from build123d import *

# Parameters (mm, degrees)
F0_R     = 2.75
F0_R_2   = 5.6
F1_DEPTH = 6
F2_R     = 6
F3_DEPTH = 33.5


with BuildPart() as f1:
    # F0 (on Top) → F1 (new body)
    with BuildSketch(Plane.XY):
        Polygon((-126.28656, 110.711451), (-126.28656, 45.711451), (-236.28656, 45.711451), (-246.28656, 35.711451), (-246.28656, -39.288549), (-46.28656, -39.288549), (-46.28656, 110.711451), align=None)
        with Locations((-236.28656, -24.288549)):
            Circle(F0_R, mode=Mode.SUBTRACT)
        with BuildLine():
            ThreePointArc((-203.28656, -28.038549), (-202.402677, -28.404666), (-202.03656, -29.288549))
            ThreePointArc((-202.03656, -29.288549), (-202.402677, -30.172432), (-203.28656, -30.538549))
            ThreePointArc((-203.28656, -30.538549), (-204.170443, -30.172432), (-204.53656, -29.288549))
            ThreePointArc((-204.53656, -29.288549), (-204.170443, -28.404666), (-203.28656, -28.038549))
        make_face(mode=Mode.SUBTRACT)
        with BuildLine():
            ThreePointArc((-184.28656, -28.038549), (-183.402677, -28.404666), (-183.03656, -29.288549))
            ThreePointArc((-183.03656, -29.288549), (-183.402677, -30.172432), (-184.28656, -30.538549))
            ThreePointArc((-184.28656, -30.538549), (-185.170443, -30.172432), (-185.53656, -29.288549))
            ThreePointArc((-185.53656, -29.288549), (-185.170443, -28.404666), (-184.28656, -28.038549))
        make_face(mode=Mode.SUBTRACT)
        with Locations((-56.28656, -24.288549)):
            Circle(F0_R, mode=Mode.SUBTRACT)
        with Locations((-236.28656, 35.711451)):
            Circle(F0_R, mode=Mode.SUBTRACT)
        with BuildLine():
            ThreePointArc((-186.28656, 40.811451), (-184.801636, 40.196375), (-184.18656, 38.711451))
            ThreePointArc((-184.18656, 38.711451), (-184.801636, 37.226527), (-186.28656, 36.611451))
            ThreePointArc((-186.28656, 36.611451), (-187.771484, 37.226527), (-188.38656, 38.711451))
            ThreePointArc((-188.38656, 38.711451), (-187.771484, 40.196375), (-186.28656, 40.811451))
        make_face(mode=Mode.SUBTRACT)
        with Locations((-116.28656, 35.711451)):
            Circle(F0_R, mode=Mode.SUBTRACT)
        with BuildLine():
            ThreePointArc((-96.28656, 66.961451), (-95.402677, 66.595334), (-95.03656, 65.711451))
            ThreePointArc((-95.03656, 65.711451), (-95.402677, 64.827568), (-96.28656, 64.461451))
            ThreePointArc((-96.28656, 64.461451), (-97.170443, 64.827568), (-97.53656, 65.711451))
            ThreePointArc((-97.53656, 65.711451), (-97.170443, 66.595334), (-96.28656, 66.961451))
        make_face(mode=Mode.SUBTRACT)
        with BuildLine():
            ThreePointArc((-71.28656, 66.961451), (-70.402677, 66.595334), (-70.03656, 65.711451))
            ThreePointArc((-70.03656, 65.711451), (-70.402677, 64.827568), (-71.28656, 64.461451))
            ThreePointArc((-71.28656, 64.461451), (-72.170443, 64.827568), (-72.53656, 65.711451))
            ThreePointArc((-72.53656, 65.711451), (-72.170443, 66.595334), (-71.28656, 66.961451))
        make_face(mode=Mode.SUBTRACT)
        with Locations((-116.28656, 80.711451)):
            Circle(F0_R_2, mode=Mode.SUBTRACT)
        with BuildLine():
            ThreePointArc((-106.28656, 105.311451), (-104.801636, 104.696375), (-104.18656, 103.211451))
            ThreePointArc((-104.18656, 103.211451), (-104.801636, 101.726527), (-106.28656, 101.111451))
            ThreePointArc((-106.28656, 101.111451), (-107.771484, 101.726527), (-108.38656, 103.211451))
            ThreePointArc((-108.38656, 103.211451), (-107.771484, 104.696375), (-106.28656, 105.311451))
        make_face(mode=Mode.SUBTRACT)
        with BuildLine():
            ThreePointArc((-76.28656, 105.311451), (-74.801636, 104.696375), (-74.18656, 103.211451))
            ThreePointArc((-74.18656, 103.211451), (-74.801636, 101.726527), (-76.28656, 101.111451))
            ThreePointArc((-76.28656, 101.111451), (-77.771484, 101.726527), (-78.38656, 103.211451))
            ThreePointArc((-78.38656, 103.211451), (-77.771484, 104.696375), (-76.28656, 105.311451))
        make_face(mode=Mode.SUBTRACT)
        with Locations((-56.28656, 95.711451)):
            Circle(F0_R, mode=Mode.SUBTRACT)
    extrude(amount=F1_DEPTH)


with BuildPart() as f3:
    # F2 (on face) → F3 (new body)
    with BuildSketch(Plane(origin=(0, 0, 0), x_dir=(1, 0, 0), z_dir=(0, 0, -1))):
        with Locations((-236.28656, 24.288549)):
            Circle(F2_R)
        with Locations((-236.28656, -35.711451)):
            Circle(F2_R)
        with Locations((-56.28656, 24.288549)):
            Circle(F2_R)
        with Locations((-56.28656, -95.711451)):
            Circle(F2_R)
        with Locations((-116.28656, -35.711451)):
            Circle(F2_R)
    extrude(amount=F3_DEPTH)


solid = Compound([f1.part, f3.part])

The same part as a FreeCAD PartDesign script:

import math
import FreeCAD as App
import Part
import Sketcher

V = App.Vector
Q = App.Units.Quantity


def add_polygon(sketch, points):
    """Adds a closed chain of lines whose ends are joined by coincident constraints."""
    first, n = sketch.GeometryCount, len(points)
    for a, b in zip(points, points[1:] + points[:1]):
        sketch.addGeometry(Part.LineSegment(App.Vector(*a, 0), App.Vector(*b, 0)), False)
    for i in range(n):
        sketch.addConstraint(Sketcher.Constraint("Coincident", first + i, 2, first + (i + 1) % n, 1))

doc = App.newDocument("Part")
body = doc.addObject("PartDesign::Body", "Body")

# Sketch on XY plane
sketch1 = body.newObject("Sketcher::SketchObject", "Sketch")
sketch1.AttachmentSupport = (doc.getObject("XY_Plane"), [""])
sketch1.MapMode = "FlatFace"
add_polygon(sketch1, [(-126.28656, 110.711451), (-126.28656, 45.711451), (-236.28656, 45.711451), (-246.28656, 35.711451), (-246.28656, -39.288549), (-46.28656, -39.288549), (-46.28656, 110.711451)])  # lines 0-6
sketch1.addGeometry(Part.Circle(V(-236.28656, -24.288549, 0), V(0, 0, 1), 2.75), False)  # 7
sketch1.addGeometry(Part.ArcOfCircle(Part.Circle(V(-203.286558, -29.288551, 0), V(0, 0, 1), 1.250002), math.radians(90.000075), math.radians(179.999925)), False)  # 8
sketch1.addGeometry(Part.ArcOfCircle(Part.Circle(V(-203.286562, -29.288551, 0), V(0, 0, 1), 1.250002), math.radians(0.000075), math.radians(89.999925)), False)  # 9
sketch1.addGeometry(Part.ArcOfCircle(Part.Circle(V(-203.286562, -29.288547, 0), V(0, 0, 1), 1.250002), math.radians(-89.999925), math.radians(-0.000075)), False)  # 10
sketch1.addGeometry(Part.ArcOfCircle(Part.Circle(V(-203.286558, -29.288547, 0), V(0, 0, 1), 1.250002), math.radians(-179.999925), math.radians(-90.000075)), False)  # 11
sketch1.addGeometry(Part.ArcOfCircle(Part.Circle(V(-184.286558, -29.288551, 0), V(0, 0, 1), 1.250002), math.radians(90.000075), math.radians(179.999925)), False)  # 12
sketch1.addGeometry(Part.ArcOfCircle(Part.Circle(V(-184.286562, -29.288551, 0), V(0, 0, 1), 1.250002), math.radians(0.000075), math.radians(89.999925)), False)  # 13
sketch1.addGeometry(Part.ArcOfCircle(Part.Circle(V(-184.286562, -29.288547, 0), V(0, 0, 1), 1.250002), math.radians(-89.999925), math.radians(-0.000075)), False)  # 14
sketch1.addGeometry(Part.ArcOfCircle(Part.Circle(V(-184.286558, -29.288547, 0), V(0, 0, 1), 1.250002), math.radians(-179.999925), math.radians(-90.000075)), False)  # 15
sketch1.addGeometry(Part.Circle(V(-236.28656, 35.711451, 0), V(0, 0, 1), 2.75), False)  # 16
sketch1.addGeometry(Part.Circle(V(-56.28656, -24.288549, 0), V(0, 0, 1), 2.75), False)  # 17
sketch1.addGeometry(Part.Circle(V(-116.28656, 35.711451, 0), V(0, 0, 1), 2.75), False)  # 18
sketch1.addGeometry(Part.ArcOfCircle(Part.Circle(V(-186.286559, 38.71145, 0), V(0, 0, 1), 2.100001), math.radians(90.000022), math.radians(179.999978)), False)  # 19
sketch1.addGeometry(Part.ArcOfCircle(Part.Circle(V(-186.286561, 38.71145, 0), V(0, 0, 1), 2.100001), math.radians(0.000022), math.radians(89.999978)), False)  # 20
sketch1.addGeometry(Part.ArcOfCircle(Part.Circle(V(-186.286561, 38.711452, 0), V(0, 0, 1), 2.100001), math.radians(-89.999978), math.radians(-0.000022)), False)  # 21
sketch1.addGeometry(Part.ArcOfCircle(Part.Circle(V(-186.286559, 38.711452, 0), V(0, 0, 1), 2.100001), math.radians(-179.999978), math.radians(-90.000022)), False)  # 22
sketch1.addGeometry(Part.ArcOfCircle(Part.Circle(V(-96.286558, 65.711449, 0), V(0, 0, 1), 1.250002), math.radians(90.000075), math.radians(179.999925)), False)  # 23
sketch1.addGeometry(Part.ArcOfCircle(Part.Circle(V(-96.286562, 65.711449, 0), V(0, 0, 1), 1.250002), math.radians(0.000075), math.radians(89.999925)), False)  # 24
sketch1.addGeometry(Part.ArcOfCircle(Part.Circle(V(-96.286562, 65.711453, 0), V(0, 0, 1), 1.250002), math.radians(-89.999925), math.radians(-0.000075)), False)  # 25
sketch1.addGeometry(Part.ArcOfCircle(Part.Circle(V(-96.286558, 65.711453, 0), V(0, 0, 1), 1.250002), math.radians(-179.999925), math.radians(-90.000075)), False)  # 26
sketch1.addGeometry(Part.ArcOfCircle(Part.Circle(V(-71.286558, 65.711449, 0), V(0, 0, 1), 1.250002), math.radians(90.000075), math.radians(179.999925)), False)  # 27
sketch1.addGeometry(Part.ArcOfCircle(Part.Circle(V(-71.286562, 65.711449, 0), V(0, 0, 1), 1.250002), math.radians(0.000075), math.radians(89.999925)), False)  # 28
sketch1.addGeometry(Part.ArcOfCircle(Part.Circle(V(-71.286562, 65.711453, 0), V(0, 0, 1), 1.250002), math.radians(-89.999925), math.radians(-0.000075)), False)  # 29
sketch1.addGeometry(Part.ArcOfCircle(Part.Circle(V(-71.286558, 65.711453, 0), V(0, 0, 1), 1.250002), math.radians(-179.999925), math.radians(-90.000075)), False)  # 30
sketch1.addGeometry(Part.Circle(V(-116.28656, 80.711451, 0), V(0, 0, 1), 5.6), False)  # 31
sketch1.addGeometry(Part.ArcOfCircle(Part.Circle(V(-106.286559, 103.21145, 0), V(0, 0, 1), 2.100001), math.radians(90.000022), math.radians(179.999978)), False)  # 32
sketch1.addGeometry(Part.ArcOfCircle(Part.Circle(V(-106.286561, 103.21145, 0), V(0, 0, 1), 2.100001), math.radians(0.000022), math.radians(89.999978)), False)  # 33
sketch1.addGeometry(Part.ArcOfCircle(Part.Circle(V(-106.286561, 103.211452, 0), V(0, 0, 1), 2.100001), math.radians(-89.999978), math.radians(-0.000022)), False)  # 34
sketch1.addGeometry(Part.ArcOfCircle(Part.Circle(V(-106.286559, 103.211452, 0), V(0, 0, 1), 2.100001), math.radians(-179.999978), math.radians(-90.000022)), False)  # 35
sketch1.addGeometry(Part.Circle(V(-56.28656, 95.711451, 0), V(0, 0, 1), 2.75), False)  # 36
sketch1.addGeometry(Part.ArcOfCircle(Part.Circle(V(-76.286559, 103.21145, 0), V(0, 0, 1), 2.100001), math.radians(90.000022), math.radians(179.999978)), False)  # 37
sketch1.addGeometry(Part.ArcOfCircle(Part.Circle(V(-76.286561, 103.21145, 0), V(0, 0, 1), 2.100001), math.radians(0.000022), math.radians(89.999978)), False)  # 38
sketch1.addGeometry(Part.ArcOfCircle(Part.Circle(V(-76.286561, 103.211452, 0), V(0, 0, 1), 2.100001), math.radians(-89.999978), math.radians(-0.000022)), False)  # 39
sketch1.addGeometry(Part.ArcOfCircle(Part.Circle(V(-76.286559, 103.211452, 0), V(0, 0, 1), 2.100001), math.radians(-179.999978), math.radians(-90.000022)), False)  # 40
sketch1.addConstraint([
    Sketcher.Constraint("Coincident", 8, 1, 9, 2),
    Sketcher.Constraint("Coincident", 9, 1, 10, 2),
    Sketcher.Constraint("Coincident", 10, 1, 11, 2),
    Sketcher.Constraint("Coincident", 11, 1, 8, 2),
    Sketcher.Constraint("Coincident", 12, 1, 13, 2),
    Sketcher.Constraint("Coincident", 13, 1, 14, 2),
    Sketcher.Constraint("Coincident", 14, 1, 15, 2),
    Sketcher.Constraint("Coincident", 15, 1, 12, 2),
    Sketcher.Constraint("Tangent", 19, 1, 20, 2),
    Sketcher.Constraint("Tangent", 20, 1, 21, 2),
    Sketcher.Constraint("Tangent", 21, 1, 22, 2),
    Sketcher.Constraint("Tangent", 22, 1, 19, 2),
    Sketcher.Constraint("Coincident", 23, 1, 24, 2),
    Sketcher.Constraint("Coincident", 24, 1, 25, 2),
    Sketcher.Constraint("Coincident", 25, 1, 26, 2),
    Sketcher.Constraint("Coincident", 26, 1, 23, 2),
    Sketcher.Constraint("Coincident", 27, 1, 28, 2),
    Sketcher.Constraint("Coincident", 28, 1, 29, 2),
    Sketcher.Constraint("Coincident", 29, 1, 30, 2),
    Sketcher.Constraint("Coincident", 30, 1, 27, 2),
    Sketcher.Constraint("Tangent", 32, 1, 33, 2),
    Sketcher.Constraint("Tangent", 33, 1, 34, 2),
    Sketcher.Constraint("Tangent", 34, 1, 35, 2),
    Sketcher.Constraint("Tangent", 35, 1, 32, 2),
    Sketcher.Constraint("Tangent", 37, 1, 38, 2),
    Sketcher.Constraint("Tangent", 38, 1, 39, 2),
    Sketcher.Constraint("Tangent", 39, 1, 40, 2),
    Sketcher.Constraint("Tangent", 40, 1, 37, 2),
    Sketcher.Constraint("Vertical", 0),
    Sketcher.Constraint("Horizontal", 1),
    Sketcher.Constraint("Vertical", 3),
    Sketcher.Constraint("Horizontal", 4),
    Sketcher.Constraint("Vertical", 5),
    Sketcher.Constraint("Horizontal", 6),
    Sketcher.Constraint("Coincident", 9, 3, 8, 3),
    Sketcher.Constraint("Coincident", 10, 3, 8, 3),
    Sketcher.Constraint("Coincident", 13, 3, 12, 3),
    Sketcher.Constraint("Coincident", 14, 3, 12, 3),
    Sketcher.Constraint("Coincident", 24, 3, 23, 3),
    Sketcher.Constraint("Coincident", 25, 3, 23, 3),
    Sketcher.Constraint("Coincident", 28, 3, 27, 3),
    Sketcher.Constraint("Coincident", 29, 3, 27, 3),
    Sketcher.Constraint("Equal", 10, 11),
    Sketcher.Constraint("Equal", 11, 12),
    Sketcher.Constraint("Equal", 14, 15),
    Sketcher.Constraint("Equal", 7, 16),
    Sketcher.Constraint("Equal", 16, 17),
    Sketcher.Constraint("Equal", 17, 18),
    Sketcher.Constraint("Equal", 19, 20),
    Sketcher.Constraint("Equal", 15, 23),
    Sketcher.Constraint("Equal", 25, 26),
    Sketcher.Constraint("Equal", 26, 27),
    Sketcher.Constraint("Equal", 29, 30),
    Sketcher.Constraint("Equal", 22, 32),
    Sketcher.Constraint("Equal", 32, 33),
    Sketcher.Constraint("Equal", 18, 36),
    Sketcher.Constraint("Equal", 35, 37),
    Sketcher.Constraint("Equal", 37, 38),
    Sketcher.Constraint("Horizontal", 9, 3, 12, 3),
    Sketcher.Constraint("Horizontal", 7, 3, 17, 3),
    Sketcher.Constraint("Horizontal", 16, 3, 18, 3),
    Sketcher.Constraint("Horizontal", 24, 3, 27, 3),
    Sketcher.Constraint("Horizontal", 35, 3, 37, 3),
    Sketcher.Constraint("Horizontal", 18, 3, 2, 2),
    Sketcher.Constraint("Horizontal", 15, 3, 9, 1),
    Sketcher.Constraint("Horizontal", 9, 1, 11, 1),
    Sketcher.Constraint("Horizontal", 11, 1, 13, 1),
    Sketcher.Constraint("Horizontal", 13, 1, 15, 1),
    Sketcher.Constraint("Horizontal", 22, 3, 20, 1),
    Sketcher.Constraint("Horizontal", 20, 1, 22, 1),
    Sketcher.Constraint("Horizontal", 30, 3, 24, 1),
    Sketcher.Constraint("Horizontal", 24, 1, 26, 1),
    Sketcher.Constraint("Horizontal", 26, 1, 28, 1),
    Sketcher.Constraint("Horizontal", 28, 1, 30, 1),
    Sketcher.Constraint("Horizontal", 40, 3, 33, 1),
    Sketcher.Constraint("Horizontal", 33, 1, 35, 1),
    Sketcher.Constraint("Horizontal", 35, 1, 38, 1),
    Sketcher.Constraint("Horizontal", 38, 1, 40, 1),
    Sketcher.Constraint("Vertical", 7, 3, 16, 3),
    Sketcher.Constraint("Vertical", 18, 3, 31, 3),
    Sketcher.Constraint("Vertical", 17, 3, 36, 3),
    Sketcher.Constraint("Vertical", 16, 3, 1, 2),
    Sketcher.Constraint("Vertical", 11, 3, 8, 1),
    Sketcher.Constraint("Vertical", 8, 1, 10, 1),
    Sketcher.Constraint("Vertical", 15, 3, 12, 1),
    Sketcher.Constraint("Vertical", 12, 1, 14, 1),
    Sketcher.Constraint("Vertical", 22, 3, 19, 1),
    Sketcher.Constraint("Vertical", 19, 1, 21, 1),
    Sketcher.Constraint("Vertical", 26, 3, 23, 1),
    Sketcher.Constraint("Vertical", 23, 1, 25, 1),
    Sketcher.Constraint("Vertical", 30, 3, 27, 1),
    Sketcher.Constraint("Vertical", 27, 1, 29, 1),
    Sketcher.Constraint("Vertical", 35, 3, 32, 1),
    Sketcher.Constraint("Vertical", 32, 1, 34, 1),
    Sketcher.Constraint("Vertical", 40, 3, 37, 1),
    Sketcher.Constraint("Vertical", 37, 1, 39, 1),
    Sketcher.Constraint("Diameter", 7, Q("5.5 mm")),
    Sketcher.Constraint("Diameter", 31, Q("11.2 mm")),
    Sketcher.Constraint("Radius", 19, Q("2.100001 mm")),
    Sketcher.Constraint("DistanceX", 1, 2, 1, 1, Q("110 mm")),
    Sketcher.Constraint("DistanceX", 4, 1, 4, 2, Q("200 mm")),
    Sketcher.Constraint("DistanceX", 6, 2, 6, 1, Q("80 mm")),
    Sketcher.Constraint("DistanceY", 0, 2, 0, 1, Q("65 mm")),
    Sketcher.Constraint("DistanceY", 3, 2, 3, 1, Q("75 mm")),
    Sketcher.Constraint("DistanceY", 5, 1, 5, 2, Q("150 mm")),
    Sketcher.Constraint("Radius", 8, Q("1.250002 mm")),
    Sketcher.Constraint("DistanceX", 7, 3, -1, 1, Q("236.28656 mm")),
    Sketcher.Constraint("DistanceY", 7, 3, -1, 1, Q("24.288549 mm")),
    Sketcher.Constraint("DistanceX", 8, 3, -1, 1, Q("203.286558 mm")),
    Sketcher.Constraint("DistanceY", 8, 3, -1, 1, Q("29.288551 mm")),
    Sketcher.Constraint("DistanceX", 12, 3, -1, 1, Q("184.286558 mm")),
    Sketcher.Constraint("DistanceY", -1, 1, 16, 3, Q("35.711451 mm")),
    Sketcher.Constraint("DistanceX", 17, 3, -1, 1, Q("56.28656 mm")),
    Sketcher.Constraint("DistanceX", 18, 3, -1, 1, Q("116.28656 mm")),
    Sketcher.Constraint("DistanceX", 19, 3, -1, 1, Q("186.286559 mm")),
    Sketcher.Constraint("DistanceY", -1, 1, 19, 3, Q("38.71145 mm")),
    Sketcher.Constraint("DistanceX", 23, 3, -1, 1, Q("96.286558 mm")),
    Sketcher.Constraint("DistanceY", -1, 1, 23, 3, Q("65.711449 mm")),
    Sketcher.Constraint("DistanceX", 27, 3, -1, 1, Q("71.286558 mm")),
    Sketcher.Constraint("DistanceY", -1, 1, 31, 3, Q("80.711451 mm")),
    Sketcher.Constraint("DistanceX", 32, 3, -1, 1, Q("106.286559 mm")),
    Sketcher.Constraint("DistanceY", -1, 1, 32, 3, Q("103.21145 mm")),
    Sketcher.Constraint("DistanceY", -1, 1, 36, 3, Q("95.711451 mm")),
    Sketcher.Constraint("DistanceX", 37, 3, -1, 1, Q("76.286559 mm")),
])
pad1 = body.newObject("PartDesign::Pad", "Pad")
pad1.Profile = sketch1
pad1.Length = 6
body2 = doc.addObject("PartDesign::Body", "Body001")
body2.AllowCompound = True

# Sketch on XY plane
sketch2 = body2.newObject("Sketcher::SketchObject", "Sketch001")
sketch2.AttachmentSupport = (doc.getObject("XY_Plane001"), [""])
sketch2.MapMode = "FlatFace"
sketch2.addGeometry([
    Part.Circle(V(-236.28656, -24.288549, 0), V(0, 0, 1), 6),  # 0
    Part.Circle(V(-236.28656, 35.711451, 0), V(0, 0, 1), 6),  # 1
    Part.Circle(V(-56.28656, -24.288549, 0), V(0, 0, 1), 6),  # 2
    Part.Circle(V(-56.28656, 95.711451, 0), V(0, 0, 1), 6),  # 3
    Part.Circle(V(-116.28656, 35.711451, 0), V(0, 0, 1), 6),  # 4
], False)
sketch2.addConstraint([
    Sketcher.Constraint("Equal", 0, 1),
    Sketcher.Constraint("Equal", 1, 2),
    Sketcher.Constraint("Equal", 2, 3),
    Sketcher.Constraint("Equal", 3, 4),
    Sketcher.Constraint("Horizontal", 0, 3, 2, 3),
    Sketcher.Constraint("Horizontal", 1, 3, 4, 3),
    Sketcher.Constraint("Vertical", 0, 3, 1, 3),
    Sketcher.Constraint("Vertical", 2, 3, 3, 3),
    Sketcher.Constraint("Diameter", 0, Q("12 mm")),
    Sketcher.Constraint("DistanceY", 0, 3, 1, 3, Q("60 mm")),
    Sketcher.Constraint("DistanceX", 0, 3, 2, 3, Q("180 mm")),
    Sketcher.Constraint("DistanceY", 2, 3, 3, 3, Q("120 mm")),
    Sketcher.Constraint("DistanceX", 4, 3, 2, 3, Q("60 mm")),
    Sketcher.Constraint("DistanceX", 0, 3, -1, 1, Q("236.28656 mm")),
    Sketcher.Constraint("DistanceY", 0, 3, -1, 1, Q("24.288549 mm")),
])
pad2 = body2.newObject("PartDesign::Pad", "Pad001")
pad2.Profile = sketch2
pad2.Length = 33.5
pad2.Reversed = True

doc.recompute()
